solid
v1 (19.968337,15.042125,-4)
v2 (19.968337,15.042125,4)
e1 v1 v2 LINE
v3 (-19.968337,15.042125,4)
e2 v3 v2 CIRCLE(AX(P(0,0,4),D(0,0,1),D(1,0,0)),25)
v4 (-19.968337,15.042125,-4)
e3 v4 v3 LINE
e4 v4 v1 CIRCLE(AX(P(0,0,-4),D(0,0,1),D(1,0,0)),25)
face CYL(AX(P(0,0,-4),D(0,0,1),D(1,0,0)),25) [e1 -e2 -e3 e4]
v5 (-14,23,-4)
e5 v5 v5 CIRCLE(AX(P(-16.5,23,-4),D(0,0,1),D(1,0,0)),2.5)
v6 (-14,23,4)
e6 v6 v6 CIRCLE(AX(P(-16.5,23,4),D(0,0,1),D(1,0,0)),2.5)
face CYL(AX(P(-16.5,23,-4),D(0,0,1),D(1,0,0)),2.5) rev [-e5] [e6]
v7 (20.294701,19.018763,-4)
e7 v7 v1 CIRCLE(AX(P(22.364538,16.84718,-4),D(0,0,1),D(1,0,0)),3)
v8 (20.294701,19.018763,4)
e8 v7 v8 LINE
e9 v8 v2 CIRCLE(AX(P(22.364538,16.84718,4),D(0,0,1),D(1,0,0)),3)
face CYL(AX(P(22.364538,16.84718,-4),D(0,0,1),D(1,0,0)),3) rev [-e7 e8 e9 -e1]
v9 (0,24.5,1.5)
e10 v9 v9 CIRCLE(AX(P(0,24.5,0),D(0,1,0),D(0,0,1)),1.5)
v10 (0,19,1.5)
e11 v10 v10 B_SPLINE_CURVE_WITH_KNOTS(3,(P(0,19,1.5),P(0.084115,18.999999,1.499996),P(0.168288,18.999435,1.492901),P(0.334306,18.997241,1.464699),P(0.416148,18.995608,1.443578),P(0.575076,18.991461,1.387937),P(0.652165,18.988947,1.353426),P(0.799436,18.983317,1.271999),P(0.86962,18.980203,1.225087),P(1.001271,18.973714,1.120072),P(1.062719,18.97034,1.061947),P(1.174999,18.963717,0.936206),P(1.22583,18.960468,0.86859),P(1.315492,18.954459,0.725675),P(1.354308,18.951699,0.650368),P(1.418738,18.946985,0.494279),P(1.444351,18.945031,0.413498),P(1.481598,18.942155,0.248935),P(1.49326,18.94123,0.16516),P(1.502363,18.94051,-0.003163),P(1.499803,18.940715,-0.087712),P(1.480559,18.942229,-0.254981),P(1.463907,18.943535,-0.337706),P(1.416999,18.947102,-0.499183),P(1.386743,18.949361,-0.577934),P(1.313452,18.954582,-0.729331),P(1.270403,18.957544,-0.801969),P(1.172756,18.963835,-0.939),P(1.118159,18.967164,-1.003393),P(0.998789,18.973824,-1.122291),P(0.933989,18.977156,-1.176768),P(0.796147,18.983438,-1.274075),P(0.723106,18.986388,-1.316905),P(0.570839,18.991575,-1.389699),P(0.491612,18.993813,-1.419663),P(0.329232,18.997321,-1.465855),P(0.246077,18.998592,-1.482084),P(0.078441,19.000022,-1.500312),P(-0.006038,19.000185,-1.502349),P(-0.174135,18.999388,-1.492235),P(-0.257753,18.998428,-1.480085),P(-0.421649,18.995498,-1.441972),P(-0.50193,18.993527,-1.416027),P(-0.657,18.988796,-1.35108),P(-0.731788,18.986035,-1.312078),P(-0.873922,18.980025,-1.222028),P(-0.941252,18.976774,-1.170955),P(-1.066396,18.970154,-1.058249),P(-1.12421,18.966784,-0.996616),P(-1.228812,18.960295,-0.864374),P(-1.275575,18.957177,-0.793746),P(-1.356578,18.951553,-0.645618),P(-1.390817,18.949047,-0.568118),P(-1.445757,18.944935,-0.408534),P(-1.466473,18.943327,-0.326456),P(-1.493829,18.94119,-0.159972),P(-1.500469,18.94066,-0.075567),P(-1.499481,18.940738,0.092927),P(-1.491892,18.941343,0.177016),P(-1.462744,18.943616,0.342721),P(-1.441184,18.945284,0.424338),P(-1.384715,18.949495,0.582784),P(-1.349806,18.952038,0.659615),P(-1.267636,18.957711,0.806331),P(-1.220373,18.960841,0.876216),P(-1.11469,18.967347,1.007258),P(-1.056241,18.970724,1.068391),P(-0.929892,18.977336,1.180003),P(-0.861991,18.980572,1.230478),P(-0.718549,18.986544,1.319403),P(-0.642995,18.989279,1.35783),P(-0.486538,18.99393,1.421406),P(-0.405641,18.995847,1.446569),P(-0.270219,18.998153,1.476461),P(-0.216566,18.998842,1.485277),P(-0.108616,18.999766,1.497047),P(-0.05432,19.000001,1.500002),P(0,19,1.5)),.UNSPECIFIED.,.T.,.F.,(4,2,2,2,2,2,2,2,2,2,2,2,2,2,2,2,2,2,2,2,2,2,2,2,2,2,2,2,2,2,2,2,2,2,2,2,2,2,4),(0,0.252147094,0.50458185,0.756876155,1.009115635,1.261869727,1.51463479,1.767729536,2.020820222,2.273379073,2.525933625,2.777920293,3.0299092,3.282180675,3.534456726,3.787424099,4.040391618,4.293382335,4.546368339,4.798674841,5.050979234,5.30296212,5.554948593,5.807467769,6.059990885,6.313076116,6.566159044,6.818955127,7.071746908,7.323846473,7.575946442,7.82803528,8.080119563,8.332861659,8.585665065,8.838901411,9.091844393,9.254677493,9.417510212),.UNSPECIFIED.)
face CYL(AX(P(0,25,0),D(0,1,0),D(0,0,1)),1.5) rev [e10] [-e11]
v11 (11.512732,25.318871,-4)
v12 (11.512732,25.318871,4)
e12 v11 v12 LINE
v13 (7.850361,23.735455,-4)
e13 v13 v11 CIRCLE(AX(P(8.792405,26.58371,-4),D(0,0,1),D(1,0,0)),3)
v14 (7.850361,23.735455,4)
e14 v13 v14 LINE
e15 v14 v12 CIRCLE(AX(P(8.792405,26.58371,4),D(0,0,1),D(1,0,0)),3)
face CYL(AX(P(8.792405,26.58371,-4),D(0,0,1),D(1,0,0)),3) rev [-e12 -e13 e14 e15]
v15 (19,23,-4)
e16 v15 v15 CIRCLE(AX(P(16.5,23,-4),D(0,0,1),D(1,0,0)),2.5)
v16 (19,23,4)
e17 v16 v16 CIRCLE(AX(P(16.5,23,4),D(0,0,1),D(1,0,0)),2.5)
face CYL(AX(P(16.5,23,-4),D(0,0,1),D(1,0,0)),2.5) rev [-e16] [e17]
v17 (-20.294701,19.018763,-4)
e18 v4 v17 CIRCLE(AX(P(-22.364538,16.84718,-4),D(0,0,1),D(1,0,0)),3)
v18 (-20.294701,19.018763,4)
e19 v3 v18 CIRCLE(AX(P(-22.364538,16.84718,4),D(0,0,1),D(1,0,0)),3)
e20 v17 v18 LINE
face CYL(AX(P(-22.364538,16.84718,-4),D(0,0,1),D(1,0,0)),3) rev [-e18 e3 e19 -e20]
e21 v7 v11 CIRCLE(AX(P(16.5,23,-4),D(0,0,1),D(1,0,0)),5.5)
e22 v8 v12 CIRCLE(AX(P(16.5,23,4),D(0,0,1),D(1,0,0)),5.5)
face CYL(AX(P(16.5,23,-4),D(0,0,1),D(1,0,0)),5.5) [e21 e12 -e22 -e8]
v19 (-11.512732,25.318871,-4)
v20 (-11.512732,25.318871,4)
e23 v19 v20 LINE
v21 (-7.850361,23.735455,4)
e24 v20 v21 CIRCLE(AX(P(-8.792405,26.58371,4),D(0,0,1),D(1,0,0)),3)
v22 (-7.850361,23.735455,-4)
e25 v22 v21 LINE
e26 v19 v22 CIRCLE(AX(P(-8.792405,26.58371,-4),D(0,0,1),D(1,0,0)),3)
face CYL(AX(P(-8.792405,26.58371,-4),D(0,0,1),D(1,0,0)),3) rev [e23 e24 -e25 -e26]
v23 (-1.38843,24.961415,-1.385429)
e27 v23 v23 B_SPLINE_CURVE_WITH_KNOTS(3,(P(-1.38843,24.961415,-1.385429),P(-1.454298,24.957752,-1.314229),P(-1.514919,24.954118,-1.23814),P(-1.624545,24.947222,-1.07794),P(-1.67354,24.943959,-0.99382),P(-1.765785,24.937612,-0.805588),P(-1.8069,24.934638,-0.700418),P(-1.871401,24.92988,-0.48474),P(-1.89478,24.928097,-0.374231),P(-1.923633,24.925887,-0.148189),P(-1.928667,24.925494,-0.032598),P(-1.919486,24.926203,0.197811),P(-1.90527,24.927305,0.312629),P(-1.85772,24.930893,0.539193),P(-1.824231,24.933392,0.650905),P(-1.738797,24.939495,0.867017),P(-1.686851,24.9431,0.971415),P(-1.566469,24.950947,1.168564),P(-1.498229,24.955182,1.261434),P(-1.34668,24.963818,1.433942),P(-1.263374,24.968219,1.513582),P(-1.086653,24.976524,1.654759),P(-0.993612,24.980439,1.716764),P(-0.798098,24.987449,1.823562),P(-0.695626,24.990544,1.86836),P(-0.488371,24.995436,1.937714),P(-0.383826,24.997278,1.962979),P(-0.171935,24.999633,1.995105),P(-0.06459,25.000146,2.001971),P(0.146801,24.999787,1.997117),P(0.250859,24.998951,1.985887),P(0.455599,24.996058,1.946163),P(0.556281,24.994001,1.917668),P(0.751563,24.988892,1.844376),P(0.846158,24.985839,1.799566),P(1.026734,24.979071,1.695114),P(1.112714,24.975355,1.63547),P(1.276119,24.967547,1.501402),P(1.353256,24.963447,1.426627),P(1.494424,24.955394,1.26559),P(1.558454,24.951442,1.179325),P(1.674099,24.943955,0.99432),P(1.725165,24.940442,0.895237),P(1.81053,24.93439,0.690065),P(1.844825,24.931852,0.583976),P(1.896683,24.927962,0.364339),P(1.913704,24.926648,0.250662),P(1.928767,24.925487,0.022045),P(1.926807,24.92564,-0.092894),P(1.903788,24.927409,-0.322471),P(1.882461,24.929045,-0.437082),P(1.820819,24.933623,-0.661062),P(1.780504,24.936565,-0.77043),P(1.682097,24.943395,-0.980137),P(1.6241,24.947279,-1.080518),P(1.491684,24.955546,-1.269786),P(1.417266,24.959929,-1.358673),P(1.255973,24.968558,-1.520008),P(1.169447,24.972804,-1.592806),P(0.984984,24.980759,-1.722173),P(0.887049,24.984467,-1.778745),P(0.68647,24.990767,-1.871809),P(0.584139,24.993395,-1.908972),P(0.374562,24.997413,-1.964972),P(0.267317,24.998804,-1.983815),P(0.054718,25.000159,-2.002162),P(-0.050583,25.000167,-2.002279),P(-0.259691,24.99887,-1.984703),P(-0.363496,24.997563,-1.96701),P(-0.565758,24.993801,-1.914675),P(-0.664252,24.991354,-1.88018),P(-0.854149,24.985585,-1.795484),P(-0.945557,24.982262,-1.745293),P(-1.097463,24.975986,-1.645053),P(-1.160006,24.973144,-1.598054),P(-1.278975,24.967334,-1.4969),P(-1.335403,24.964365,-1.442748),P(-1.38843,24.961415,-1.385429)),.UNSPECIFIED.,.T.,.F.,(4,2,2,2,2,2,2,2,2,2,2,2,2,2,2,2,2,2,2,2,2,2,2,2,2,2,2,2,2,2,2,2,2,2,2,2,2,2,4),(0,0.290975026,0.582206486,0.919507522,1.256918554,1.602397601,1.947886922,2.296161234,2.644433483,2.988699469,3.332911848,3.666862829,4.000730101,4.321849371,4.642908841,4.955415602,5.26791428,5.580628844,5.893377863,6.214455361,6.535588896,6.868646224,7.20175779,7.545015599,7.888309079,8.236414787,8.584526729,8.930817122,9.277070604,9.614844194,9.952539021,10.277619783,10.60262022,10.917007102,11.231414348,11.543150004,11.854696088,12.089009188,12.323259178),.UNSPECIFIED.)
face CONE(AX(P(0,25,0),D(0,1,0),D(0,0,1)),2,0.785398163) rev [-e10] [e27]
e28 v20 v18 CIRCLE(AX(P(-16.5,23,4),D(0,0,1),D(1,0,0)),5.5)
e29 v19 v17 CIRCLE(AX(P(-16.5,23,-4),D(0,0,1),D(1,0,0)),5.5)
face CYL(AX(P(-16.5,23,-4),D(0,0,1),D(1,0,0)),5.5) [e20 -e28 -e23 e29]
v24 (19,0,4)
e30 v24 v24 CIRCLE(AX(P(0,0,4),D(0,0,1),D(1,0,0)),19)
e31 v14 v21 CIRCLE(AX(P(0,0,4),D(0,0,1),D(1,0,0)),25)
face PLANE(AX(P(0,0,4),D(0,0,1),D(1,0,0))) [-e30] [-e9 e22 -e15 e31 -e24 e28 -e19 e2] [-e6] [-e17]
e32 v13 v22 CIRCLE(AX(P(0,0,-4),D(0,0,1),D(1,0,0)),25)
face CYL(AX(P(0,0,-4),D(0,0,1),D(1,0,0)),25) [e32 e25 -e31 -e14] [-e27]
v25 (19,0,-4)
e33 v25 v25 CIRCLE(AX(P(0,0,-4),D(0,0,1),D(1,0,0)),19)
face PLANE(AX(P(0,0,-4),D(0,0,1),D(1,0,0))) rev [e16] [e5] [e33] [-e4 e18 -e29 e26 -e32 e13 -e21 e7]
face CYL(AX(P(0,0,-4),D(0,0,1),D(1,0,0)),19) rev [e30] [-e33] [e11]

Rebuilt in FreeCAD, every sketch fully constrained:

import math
import FreeCAD as App
import Part
import Sketcher

V = App.Vector
Q = App.Units.Quantity

doc = App.newDocument("Part")
body = doc.addObject("PartDesign::Body", "Body")

# Sketch on XY plane
sketch1 = body.newObject("Sketcher::SketchObject", "Sketch")
sketch1.AttachmentSupport = (doc.getObject("XY_Plane"), [""])
sketch1.MapMode = "FlatFace"
sketch1.addGeometry([
    Part.ArcOfCircle(Part.Circle(V(-16.5, 23, 0), V(0, 0, 1), 5.5), math.radians(25), math.radians(226)),  # 0
    Part.ArcOfCircle(Part.Circle(V(-22.4, 16.8, 0), V(0, 0, 1), 3), math.radians(-37), math.radians(46)),  # 1
    Part.ArcOfCircle(Part.Circle(V(0, 0, 0), V(0, 0, 1), 25), math.radians(143), math.radians(397)),  # 2
    Part.ArcOfCircle(Part.Circle(V(22.4, 16.8, 0), V(0, 0, 1), 3), math.radians(134), math.radians(217)),  # 3
    Part.ArcOfCircle(Part.Circle(V(16.5, 23, 0), V(0, 0, 1), 5.5), math.radians(-46), math.radians(155)),  # 4
    Part.ArcOfCircle(Part.Circle(V(8.8, 26.6, 0), V(0, 0, 1), 3), math.radians(-108), math.radians(-25)),  # 5
    Part.ArcOfCircle(Part.Circle(V(0, 0, 0), V(0, 0, 1), 25), math.radians(72), math.radians(108)),  # 6
    Part.ArcOfCircle(Part.Circle(V(-8.8, 26.6, 0), V(0, 0, 1), 3), math.radians(-155), math.radians(-72)),  # 7
    Part.Circle(V(0, 0, 0), V(0, 0, 1), 19),  # 8
    Part.Circle(V(-16.5, 23, 0), V(0, 0, 1), 2.5),  # 9
    Part.Circle(V(16.5, 23, 0), V(0, 0, 1), 2.5),  # 10
], False)
sketch1.addConstraint([
    Sketcher.Constraint("Tangent", 0, 2, 1, 2),
    Sketcher.Constraint("Tangent", 1, 1, 2, 1),
    Sketcher.Constraint("Tangent", 2, 2, 3, 2),
    Sketcher.Constraint("Tangent", 3, 1, 4, 1),
    Sketcher.Constraint("Tangent", 4, 2, 5, 2),
    Sketcher.Constraint("Tangent", 5, 1, 6, 1),
    Sketcher.Constraint("Tangent", 6, 2, 7, 2),
    Sketcher.Constraint("Tangent", 7, 1, 0, 1),
    Sketcher.Constraint("Coincident", 2, 3, -1, 1),
    Sketcher.Constraint("Coincident", 6, 3, -1, 1),
    Sketcher.Constraint("Coincident", 8, 3, -1, 1),
    Sketcher.Constraint("Coincident", 9, 3, 0, 3),
    Sketcher.Constraint("Coincident", 10, 3, 4, 3),
    Sketcher.Constraint("Equal", 1, 3),
    Sketcher.Constraint("Equal", 0, 4),
    Sketcher.Constraint("Equal", 3, 5),
    Sketcher.Constraint("Equal", 2, 6),
    Sketcher.Constraint("Equal", 5, 7),
    Sketcher.Constraint("Equal", 9, 10),
    Sketcher.Constraint("Symmetric", 0, 3, 4, 3, -2),
    Sketcher.Constraint("Diameter", 8, Q("38 mm")),
    Sketcher.Constraint("Diameter", 9, Q("5 mm")),
    Sketcher.Constraint("Radius", 1, Q("3 mm")),
    Sketcher.Constraint("Radius", 2, Q("25 mm")),
    Sketcher.Constraint("Radius", 0, Q("5.5 mm")),
    Sketcher.Constraint("DistanceY", -1, 1, 0, 3, Q("23 mm")),
    Sketcher.Constraint("DistanceX", 0, 3, 4, 3, Q("33 mm")),
])
pad1 = body.newObject("PartDesign::Pad", "Pad")
pad1.Profile = sketch1
pad1.Type = "TwoLengths"
pad1.Length = 4
pad1.Length2 = 4

# Sketch on XZ plane
sketch2 = body.newObject("Sketcher::SketchObject", "Sketch001")
sketch2.AttachmentSupport = (doc.getObject("XZ_Plane"), [""])
sketch2.MapMode = "FlatFace"
sketch2.AttachmentOffset = App.Placement(V(0, 0, -25), App.Rotation())
sketch2.addGeometry(Part.Circle(V(0, 0, 0), V(0, 0, 1), 1.5), False)
sketch2.addConstraint([
    Sketcher.Constraint("Coincident", 0, 3, -1, 1),
    Sketcher.Constraint("Diameter", 0, Q("3 mm")),
])
doc.recompute()
hole = body.newObject("PartDesign::Hole", "Hole")
hole.Profile = sketch2
hole.ThreadType = "None"
hole.Diameter = 3
hole.DepthType = "Dimension"
hole.Depth = 10.1
hole.DrillPoint = "Angled"
hole.DrillPointAngle = 118
hole.HoleCutType = "Countersink"
hole.HoleCutDiameter = 4
hole.HoleCutCountersinkAngle = 90
hole.Reversed = True

doc.recompute()
